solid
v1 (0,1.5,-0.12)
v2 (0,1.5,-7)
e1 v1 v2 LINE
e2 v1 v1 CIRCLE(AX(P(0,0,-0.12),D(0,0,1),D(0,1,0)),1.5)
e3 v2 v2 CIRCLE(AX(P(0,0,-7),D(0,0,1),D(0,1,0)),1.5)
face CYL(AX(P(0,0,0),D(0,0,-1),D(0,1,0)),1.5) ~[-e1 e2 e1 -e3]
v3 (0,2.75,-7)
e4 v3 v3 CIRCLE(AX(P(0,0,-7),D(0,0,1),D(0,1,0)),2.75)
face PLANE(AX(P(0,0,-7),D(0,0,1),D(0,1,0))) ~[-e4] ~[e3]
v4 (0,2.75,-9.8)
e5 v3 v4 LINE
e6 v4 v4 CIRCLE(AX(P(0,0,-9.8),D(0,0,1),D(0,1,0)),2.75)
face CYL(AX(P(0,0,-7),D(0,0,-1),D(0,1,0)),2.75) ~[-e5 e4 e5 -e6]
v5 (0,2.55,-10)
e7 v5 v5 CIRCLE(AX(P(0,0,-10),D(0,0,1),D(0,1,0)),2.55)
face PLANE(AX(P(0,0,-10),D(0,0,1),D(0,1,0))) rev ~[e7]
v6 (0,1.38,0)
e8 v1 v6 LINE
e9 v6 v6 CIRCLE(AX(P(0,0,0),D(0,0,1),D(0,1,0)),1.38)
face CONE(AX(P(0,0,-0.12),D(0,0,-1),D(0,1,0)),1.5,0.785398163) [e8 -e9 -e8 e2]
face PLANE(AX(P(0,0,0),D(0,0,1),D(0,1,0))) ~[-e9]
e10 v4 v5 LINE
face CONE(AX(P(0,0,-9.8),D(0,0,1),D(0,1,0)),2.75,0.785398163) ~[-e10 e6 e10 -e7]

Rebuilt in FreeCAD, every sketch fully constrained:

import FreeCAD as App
import Part
import Sketcher
from FreeCAD import Vector
Q = App.Units.Quantity


def add_polygon(sketch, points):
    """Adds a closed chain of lines whose ends are joined by coincident constraints."""
    first, n = sketch.GeometryCount, len(points)
    for a, b in zip(points, points[1:] + points[:1]):
        sketch.addGeometry(Part.LineSegment(App.Vector(*a, 0), App.Vector(*b, 0)), False)
    for i in range(n):
        sketch.addConstraint(Sketcher.Constraint("Coincident", first + i, 2, first + (i + 1) % n, 1))

doc = App.newDocument("Part")
params = doc.addObject("Spreadsheet::Sheet", "Params")
for row, (alias, value) in enumerate([
    ("revolution_angle", "360 deg"),
], start=1):
    params.set(f"A{row}", alias)
    params.set(f"B{row}", "=" + value)
    params.setAlias(f"B{row}", alias)

body = doc.addObject("PartDesign::Body", "Body")

# Sketch on YZ plane
sketch1 = doc.addObject("Sketcher::SketchObject", "Sketch")
body.addObject(sketch1)
sketch1.AttachmentSupport = (doc.YZ_Plane, [""])
sketch1.MapMode = "FlatFace"
add_polygon(sketch1, [(1.38, 0), (0, 0), (0, -10), (2.55, -10), (2.75, -9.8), (2.75, -7), (1.5, -7), (1.5, -0.12)])  # lines 0-7
sketch1.addConstraint([
    Sketcher.Constraint("Horizontal", 0),
    Sketcher.Constraint("Vertical", 1),
    Sketcher.Constraint("Horizontal", 2),
    Sketcher.Constraint("Vertical", 4),
    Sketcher.Constraint("Horizontal", 5),
    Sketcher.Constraint("Vertical", 6),
    Sketcher.Constraint("Coincident", 0, 2, -1, 1),
    Sketcher.Constraint("Perpendicular", 3, 7),
    Sketcher.Constraint("Angle", 3, Q("45 deg")),
    Sketcher.Constraint("DistanceY", 4, 2, -1, 1, 7.0),
    Sketcher.Constraint("DistanceY", 2, 2, 4, 2, 3.0),
    Sketcher.Constraint("DistanceX", -1, 1, 5, 2, 1.5),
    Sketcher.Constraint("DistanceX", 2, 2, 3, 2, 0.2),
    Sketcher.Constraint("DistanceX", -1, 1, 3, 2, 2.75),
    Sketcher.Constraint("DistanceY", 6, 2, -1, 1, 0.12),
])
revolution = doc.addObject("PartDesign::Revolution", "Revolution")
body.addObject(revolution)
revolution.Profile = sketch1
revolution.ReferenceAxis = (sketch1, ["V_Axis"])
revolution.setExpression("Angle", "Params.revolution_angle")

doc.recompute()
